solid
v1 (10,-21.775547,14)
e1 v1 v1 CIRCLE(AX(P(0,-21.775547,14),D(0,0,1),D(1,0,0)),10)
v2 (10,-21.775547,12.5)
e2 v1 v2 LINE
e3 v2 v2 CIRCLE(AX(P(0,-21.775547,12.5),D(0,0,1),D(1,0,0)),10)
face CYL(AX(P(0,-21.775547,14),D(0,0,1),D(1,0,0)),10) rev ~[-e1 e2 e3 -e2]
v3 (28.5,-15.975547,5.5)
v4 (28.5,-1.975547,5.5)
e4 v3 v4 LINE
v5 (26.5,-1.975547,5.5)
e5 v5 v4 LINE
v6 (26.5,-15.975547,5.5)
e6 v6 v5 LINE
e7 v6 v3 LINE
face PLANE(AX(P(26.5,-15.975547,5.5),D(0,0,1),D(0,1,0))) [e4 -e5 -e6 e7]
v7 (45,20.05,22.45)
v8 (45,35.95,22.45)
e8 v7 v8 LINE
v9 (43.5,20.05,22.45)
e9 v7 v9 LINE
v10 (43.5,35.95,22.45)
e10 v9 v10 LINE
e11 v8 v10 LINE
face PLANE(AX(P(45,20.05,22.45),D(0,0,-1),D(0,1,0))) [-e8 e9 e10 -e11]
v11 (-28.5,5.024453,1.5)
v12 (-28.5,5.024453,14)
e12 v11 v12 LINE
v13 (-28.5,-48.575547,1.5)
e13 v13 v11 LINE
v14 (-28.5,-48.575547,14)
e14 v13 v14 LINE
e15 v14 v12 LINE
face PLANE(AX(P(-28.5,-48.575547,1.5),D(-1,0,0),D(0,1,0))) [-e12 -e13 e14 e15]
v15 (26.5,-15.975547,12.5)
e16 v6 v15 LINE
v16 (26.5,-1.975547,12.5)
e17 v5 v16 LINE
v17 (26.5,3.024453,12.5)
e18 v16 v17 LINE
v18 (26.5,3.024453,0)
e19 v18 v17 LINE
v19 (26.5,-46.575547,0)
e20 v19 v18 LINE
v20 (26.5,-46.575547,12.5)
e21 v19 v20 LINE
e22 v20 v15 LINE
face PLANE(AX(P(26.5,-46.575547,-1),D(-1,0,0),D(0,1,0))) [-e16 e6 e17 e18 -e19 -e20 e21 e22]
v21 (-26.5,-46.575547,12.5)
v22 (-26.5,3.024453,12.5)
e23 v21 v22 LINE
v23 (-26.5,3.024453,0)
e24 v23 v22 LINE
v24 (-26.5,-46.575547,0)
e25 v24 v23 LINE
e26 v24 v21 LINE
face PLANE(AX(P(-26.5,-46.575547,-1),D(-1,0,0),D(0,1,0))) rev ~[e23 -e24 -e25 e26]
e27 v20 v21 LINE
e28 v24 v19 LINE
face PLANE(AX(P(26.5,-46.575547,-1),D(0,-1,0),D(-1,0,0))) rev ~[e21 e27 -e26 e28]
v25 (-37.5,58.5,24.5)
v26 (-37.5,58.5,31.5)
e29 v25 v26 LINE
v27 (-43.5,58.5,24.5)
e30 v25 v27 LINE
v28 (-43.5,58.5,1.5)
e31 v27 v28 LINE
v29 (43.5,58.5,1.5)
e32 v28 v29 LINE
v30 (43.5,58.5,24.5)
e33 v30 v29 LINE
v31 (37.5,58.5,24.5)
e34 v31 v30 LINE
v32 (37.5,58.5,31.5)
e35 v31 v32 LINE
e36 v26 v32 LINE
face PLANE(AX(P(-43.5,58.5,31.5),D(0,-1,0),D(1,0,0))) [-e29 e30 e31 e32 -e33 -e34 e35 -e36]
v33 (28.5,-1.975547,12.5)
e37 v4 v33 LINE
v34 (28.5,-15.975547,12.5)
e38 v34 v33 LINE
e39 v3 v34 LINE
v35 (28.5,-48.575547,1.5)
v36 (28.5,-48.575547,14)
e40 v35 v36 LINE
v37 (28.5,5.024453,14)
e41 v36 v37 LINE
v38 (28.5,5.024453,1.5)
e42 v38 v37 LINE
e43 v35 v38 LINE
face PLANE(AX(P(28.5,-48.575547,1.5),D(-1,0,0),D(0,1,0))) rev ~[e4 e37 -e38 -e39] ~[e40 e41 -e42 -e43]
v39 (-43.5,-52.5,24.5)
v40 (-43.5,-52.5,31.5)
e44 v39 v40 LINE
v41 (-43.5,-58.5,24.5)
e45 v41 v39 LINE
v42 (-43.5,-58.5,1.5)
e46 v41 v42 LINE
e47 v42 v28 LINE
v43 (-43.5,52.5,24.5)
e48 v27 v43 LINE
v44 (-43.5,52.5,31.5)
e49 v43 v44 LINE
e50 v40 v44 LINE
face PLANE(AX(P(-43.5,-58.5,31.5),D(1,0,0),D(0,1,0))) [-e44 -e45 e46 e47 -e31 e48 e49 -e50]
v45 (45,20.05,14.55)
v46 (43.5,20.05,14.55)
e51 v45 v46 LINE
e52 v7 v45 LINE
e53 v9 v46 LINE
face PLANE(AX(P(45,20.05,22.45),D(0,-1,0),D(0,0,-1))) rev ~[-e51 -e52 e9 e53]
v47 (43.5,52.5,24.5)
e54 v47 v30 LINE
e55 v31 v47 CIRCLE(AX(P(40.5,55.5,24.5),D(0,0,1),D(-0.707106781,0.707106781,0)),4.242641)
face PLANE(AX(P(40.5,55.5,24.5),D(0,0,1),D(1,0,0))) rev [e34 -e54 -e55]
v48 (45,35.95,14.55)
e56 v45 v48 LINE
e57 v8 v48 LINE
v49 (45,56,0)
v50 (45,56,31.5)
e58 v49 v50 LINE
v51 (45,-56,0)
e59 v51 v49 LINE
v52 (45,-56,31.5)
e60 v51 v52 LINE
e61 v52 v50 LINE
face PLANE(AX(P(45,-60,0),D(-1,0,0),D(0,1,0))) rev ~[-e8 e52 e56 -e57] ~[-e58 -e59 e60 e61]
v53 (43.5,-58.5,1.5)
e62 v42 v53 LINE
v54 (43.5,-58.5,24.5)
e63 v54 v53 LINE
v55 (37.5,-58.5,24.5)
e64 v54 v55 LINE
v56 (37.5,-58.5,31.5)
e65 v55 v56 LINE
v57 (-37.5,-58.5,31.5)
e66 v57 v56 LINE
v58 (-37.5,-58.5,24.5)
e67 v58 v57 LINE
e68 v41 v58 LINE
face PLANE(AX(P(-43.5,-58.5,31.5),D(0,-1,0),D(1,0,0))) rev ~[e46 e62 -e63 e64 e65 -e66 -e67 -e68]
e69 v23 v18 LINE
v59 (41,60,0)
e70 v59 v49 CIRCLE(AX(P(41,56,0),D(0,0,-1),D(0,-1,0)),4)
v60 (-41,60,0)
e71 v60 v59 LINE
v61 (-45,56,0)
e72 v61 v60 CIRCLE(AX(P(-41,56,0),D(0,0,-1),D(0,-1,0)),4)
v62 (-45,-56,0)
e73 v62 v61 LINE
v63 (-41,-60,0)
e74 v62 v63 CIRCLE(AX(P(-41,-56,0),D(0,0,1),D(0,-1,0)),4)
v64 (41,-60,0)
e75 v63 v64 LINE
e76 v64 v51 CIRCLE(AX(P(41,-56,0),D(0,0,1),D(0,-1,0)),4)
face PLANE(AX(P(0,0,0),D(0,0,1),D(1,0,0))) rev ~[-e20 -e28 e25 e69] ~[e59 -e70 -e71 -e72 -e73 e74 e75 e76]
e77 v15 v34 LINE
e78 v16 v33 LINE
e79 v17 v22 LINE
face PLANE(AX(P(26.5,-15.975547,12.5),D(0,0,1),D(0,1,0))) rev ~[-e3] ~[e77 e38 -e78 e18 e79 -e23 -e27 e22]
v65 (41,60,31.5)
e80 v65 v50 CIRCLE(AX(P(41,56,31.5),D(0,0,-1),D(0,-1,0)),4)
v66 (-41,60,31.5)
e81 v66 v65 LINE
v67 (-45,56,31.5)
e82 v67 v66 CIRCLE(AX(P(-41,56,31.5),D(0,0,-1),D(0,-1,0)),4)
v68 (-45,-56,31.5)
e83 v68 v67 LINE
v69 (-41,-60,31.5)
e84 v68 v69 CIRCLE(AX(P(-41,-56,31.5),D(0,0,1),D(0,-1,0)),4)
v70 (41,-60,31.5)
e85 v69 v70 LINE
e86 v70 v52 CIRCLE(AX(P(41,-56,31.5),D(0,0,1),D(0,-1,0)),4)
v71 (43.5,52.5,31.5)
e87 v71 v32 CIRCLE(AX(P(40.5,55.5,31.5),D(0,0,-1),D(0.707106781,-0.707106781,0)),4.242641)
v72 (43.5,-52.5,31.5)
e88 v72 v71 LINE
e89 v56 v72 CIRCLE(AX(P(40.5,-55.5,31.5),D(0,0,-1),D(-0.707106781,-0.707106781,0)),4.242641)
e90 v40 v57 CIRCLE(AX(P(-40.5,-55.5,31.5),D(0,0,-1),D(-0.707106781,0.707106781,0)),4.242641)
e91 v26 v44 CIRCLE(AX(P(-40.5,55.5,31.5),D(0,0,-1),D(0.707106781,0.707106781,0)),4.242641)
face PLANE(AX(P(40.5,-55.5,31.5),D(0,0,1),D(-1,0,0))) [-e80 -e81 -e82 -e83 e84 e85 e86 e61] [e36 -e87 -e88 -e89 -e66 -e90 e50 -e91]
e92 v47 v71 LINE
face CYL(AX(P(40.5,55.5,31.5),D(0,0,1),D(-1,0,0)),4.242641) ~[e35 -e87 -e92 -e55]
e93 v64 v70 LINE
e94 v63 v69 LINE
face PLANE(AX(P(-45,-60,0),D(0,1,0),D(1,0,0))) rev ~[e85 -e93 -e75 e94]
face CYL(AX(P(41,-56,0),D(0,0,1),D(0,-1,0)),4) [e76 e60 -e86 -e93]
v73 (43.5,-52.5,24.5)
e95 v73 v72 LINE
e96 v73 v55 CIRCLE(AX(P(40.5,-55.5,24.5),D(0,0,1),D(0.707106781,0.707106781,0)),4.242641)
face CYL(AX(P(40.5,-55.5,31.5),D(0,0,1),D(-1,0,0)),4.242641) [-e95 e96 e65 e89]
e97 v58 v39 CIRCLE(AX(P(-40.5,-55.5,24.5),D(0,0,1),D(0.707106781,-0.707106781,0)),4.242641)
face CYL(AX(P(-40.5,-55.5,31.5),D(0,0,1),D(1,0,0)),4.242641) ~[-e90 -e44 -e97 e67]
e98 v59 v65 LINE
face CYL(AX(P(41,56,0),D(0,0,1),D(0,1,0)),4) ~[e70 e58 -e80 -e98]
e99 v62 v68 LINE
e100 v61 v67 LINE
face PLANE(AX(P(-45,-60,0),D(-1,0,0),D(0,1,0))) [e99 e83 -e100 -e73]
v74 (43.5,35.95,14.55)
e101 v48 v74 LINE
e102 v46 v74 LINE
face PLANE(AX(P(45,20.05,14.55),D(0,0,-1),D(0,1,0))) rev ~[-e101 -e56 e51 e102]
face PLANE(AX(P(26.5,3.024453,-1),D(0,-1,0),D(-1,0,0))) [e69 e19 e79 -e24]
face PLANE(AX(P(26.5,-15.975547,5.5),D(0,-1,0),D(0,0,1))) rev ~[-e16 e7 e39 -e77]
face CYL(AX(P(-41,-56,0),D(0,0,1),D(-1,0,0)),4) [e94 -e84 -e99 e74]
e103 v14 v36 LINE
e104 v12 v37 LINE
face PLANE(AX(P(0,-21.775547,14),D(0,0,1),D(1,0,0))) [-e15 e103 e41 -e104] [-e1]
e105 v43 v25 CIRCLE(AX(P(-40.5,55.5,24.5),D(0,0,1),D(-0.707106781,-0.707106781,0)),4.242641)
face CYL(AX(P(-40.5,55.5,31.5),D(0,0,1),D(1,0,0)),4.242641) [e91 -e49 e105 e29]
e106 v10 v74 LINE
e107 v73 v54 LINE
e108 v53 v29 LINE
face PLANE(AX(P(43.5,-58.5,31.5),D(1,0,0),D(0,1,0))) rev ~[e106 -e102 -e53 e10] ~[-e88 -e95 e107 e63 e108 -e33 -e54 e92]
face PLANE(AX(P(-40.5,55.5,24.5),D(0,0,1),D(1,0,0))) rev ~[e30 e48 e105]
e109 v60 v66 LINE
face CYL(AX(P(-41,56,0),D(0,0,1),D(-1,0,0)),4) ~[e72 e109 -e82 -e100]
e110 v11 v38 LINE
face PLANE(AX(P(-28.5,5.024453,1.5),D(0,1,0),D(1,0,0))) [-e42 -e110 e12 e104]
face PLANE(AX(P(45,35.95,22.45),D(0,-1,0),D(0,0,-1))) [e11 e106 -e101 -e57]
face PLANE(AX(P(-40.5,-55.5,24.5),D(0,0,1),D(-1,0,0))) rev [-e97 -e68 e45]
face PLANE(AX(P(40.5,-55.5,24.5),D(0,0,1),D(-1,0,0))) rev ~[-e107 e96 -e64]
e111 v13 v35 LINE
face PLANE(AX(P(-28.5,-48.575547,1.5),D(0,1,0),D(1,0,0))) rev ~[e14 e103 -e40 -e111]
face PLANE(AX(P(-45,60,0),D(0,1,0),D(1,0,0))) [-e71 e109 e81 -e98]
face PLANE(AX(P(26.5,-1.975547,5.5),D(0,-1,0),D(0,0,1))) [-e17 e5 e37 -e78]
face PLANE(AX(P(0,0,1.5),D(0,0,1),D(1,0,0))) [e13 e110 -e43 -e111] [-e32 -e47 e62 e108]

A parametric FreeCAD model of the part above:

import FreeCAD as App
import Part
import Sketcher


def edges_at(feature, points):
    """Names of the edges that pass closest to the given points."""
    edges = feature.Shape.Edges
    near = lambda p: min(range(len(edges)), key=lambda i: edges[i].distToShape(Part.Vertex(*p))[0])
    return sorted({f"Edge{near(p) + 1}" for p in points})

doc = App.newDocument("Part")
body = doc.addObject("PartDesign::Body", "Body")

# Sketch on XY plane
sketch1 = body.newObject("Sketcher::SketchObject", "Sketch")
sketch1.AttachmentSupport = (doc.getObject("XY_Plane"), [""])
sketch1.MapMode = "FlatFace"
sketch1.addGeometry(Part.LineSegment(App.Vector(-45, 60, 0), App.Vector(-45, -60, 0)), False)
sketch1.addGeometry(Part.LineSegment(App.Vector(-45, -60, 0), App.Vector(45, -60, 0)), False)
sketch1.addGeometry(Part.LineSegment(App.Vector(45, -60, 0), App.Vector(45, 60, 0)), False)
sketch1.addGeometry(Part.LineSegment(App.Vector(45, 60, 0), App.Vector(-45, 60, 0)), False)
sketch1.addConstraint(Sketcher.Constraint("Coincident", 0, 2, 1, 1))
sketch1.addConstraint(Sketcher.Constraint("Coincident", 1, 2, 2, 1))
sketch1.addConstraint(Sketcher.Constraint("Coincident", 2, 2, 3, 1))
sketch1.addConstraint(Sketcher.Constraint("Coincident", 3, 2, 0, 1))
sketch1.addConstraint(Sketcher.Constraint("Vertical", 0))
sketch1.addConstraint(Sketcher.Constraint("Horizontal", 1))
sketch1.addConstraint(Sketcher.Constraint("Vertical", 2))
sketch1.addConstraint(Sketcher.Constraint("Horizontal", 3))
sketch1.addConstraint(Sketcher.Constraint("Symmetric", 0, 2, 2, 2, -1, 1))
sketch1.addConstraint(Sketcher.Constraint("DistanceX", 1, 1, 1, 2, 90.0))
sketch1.addConstraint(Sketcher.Constraint("DistanceY", 0, 2, 0, 1, 120.0))
pad1 = body.newObject("PartDesign::Pad", "Pad")
pad1.Profile = sketch1
pad1.Length = 31.5

# Sketch on XY plane
sketch2 = body.newObject("Sketcher::SketchObject", "Sketch001")
sketch2.AttachmentSupport = (doc.getObject("XY_Plane"), [""])
sketch2.MapMode = "FlatFace"
sketch2.AttachmentOffset = App.Placement(App.Vector(0, 0, 31.5), App.Rotation())
sketch2.addGeometry(Part.LineSegment(App.Vector(-44, 58, 0), App.Vector(-44, -58, 0)), False)
sketch2.addGeometry(Part.LineSegment(App.Vector(-44, -58, 0), App.Vector(44, -58, 0)), False)
sketch2.addGeometry(Part.LineSegment(App.Vector(44, -58, 0), App.Vector(44, 58, 0)), False)
sketch2.addGeometry(Part.LineSegment(App.Vector(44, 58, 0), App.Vector(-44, 58, 0)), False)
sketch2.addConstraint(Sketcher.Constraint("Coincident", 0, 2, 1, 1))
sketch2.addConstraint(Sketcher.Constraint("Coincident", 1, 2, 2, 1))
sketch2.addConstraint(Sketcher.Constraint("Coincident", 2, 2, 3, 1))
sketch2.addConstraint(Sketcher.Constraint("Coincident", 3, 2, 0, 1))
sketch2.addConstraint(Sketcher.Constraint("Vertical", 0))
sketch2.addConstraint(Sketcher.Constraint("Horizontal", 1))
sketch2.addConstraint(Sketcher.Constraint("Vertical", 2))
sketch2.addConstraint(Sketcher.Constraint("Horizontal", 3))
sketch2.addConstraint(Sketcher.Constraint("Symmetric", 0, 2, 2, 2, -1, 1))
sketch2.addConstraint(Sketcher.Constraint("DistanceX", 1, 1, 1, 2, 87.0))
sketch2.addConstraint(Sketcher.Constraint("DistanceY", 0, 2, 0, 1, 117.0))
pocket1 = body.newObject("PartDesign::Pocket", "Pocket")
pocket1.Profile = sketch2
pocket1.Length = 30
doc.recompute()

fillet = body.newObject("PartDesign::Fillet", "Fillet")
fillet.Base = (pocket1, edges_at(pocket1, [
    (45, -60, 15.75),
    (-45, -60, 15.75),
    (-45, 60, 15.75),
    (45, 60, 15.75),
]))
fillet.Radius = 4

# Sketch on XY plane
sketch3 = body.newObject("Sketcher::SketchObject", "Sketch002")
sketch3.AttachmentSupport = (doc.getObject("XY_Plane"), [""])
sketch3.MapMode = "FlatFace"
sketch3.AttachmentOffset = App.Placement(App.Vector(0, 0, 1.5), App.Rotation())
sketch3.addGeometry(Part.LineSegment(App.Vector(-28, 5, 0), App.Vector(-28, -49, 0)), False)
sketch3.addGeometry(Part.LineSegment(App.Vector(-28, -49, 0), App.Vector(28, -49, 0)), False)
sketch3.addGeometry(Part.LineSegment(App.Vector(28, -49, 0), App.Vector(28, 5, 0)), False)
sketch3.addGeometry(Part.LineSegment(App.Vector(28, 5, 0), App.Vector(-28, 5, 0)), False)
sketch3.addConstraint(Sketcher.Constraint("Coincident", 0, 2, 1, 1))
sketch3.addConstraint(Sketcher.Constraint("Coincident", 1, 2, 2, 1))
sketch3.addConstraint(Sketcher.Constraint("Coincident", 2, 2, 3, 1))
sketch3.addConstraint(Sketcher.Constraint("Coincident", 3, 2, 0, 1))
sketch3.addConstraint(Sketcher.Constraint("Vertical", 0))
sketch3.addConstraint(Sketcher.Constraint("Horizontal", 1))
sketch3.addConstraint(Sketcher.Constraint("Vertical", 2))
sketch3.addConstraint(Sketcher.Constraint("Horizontal", 3))
sketch3.addConstraint(Sketcher.Constraint("DistanceX", 1, 1, 1, 2, 57.0))
sketch3.addConstraint(Sketcher.Constraint("DistanceY", 0, 2, 0, 1, 53.6))
sketch3.addConstraint(Sketcher.Constraint("DistanceX", 0, 2, -1, 1, 28.5))
sketch3.addConstraint(Sketcher.Constraint("DistanceY", 0, 2, -1, 1, 48.575547))
pad2 = body.newObject("PartDesign::Pad", "Pad001")
pad2.Profile = sketch3
pad2.Length = 12.5

# Sketch on XY plane
sketch4 = body.newObject("Sketcher::SketchObject", "Sketch003")
sketch4.AttachmentSupport = (doc.getObject("XY_Plane"), [""])
sketch4.MapMode = "FlatFace"
sketch4.AttachmentOffset = App.Placement(App.Vector(0, 0, 14), App.Rotation())
sketch4.addGeometry(Part.LineSegment(App.Vector(-26, 3, 0), App.Vector(-26, -47, 0)), False)
sketch4.addGeometry(Part.LineSegment(App.Vector(-26, -47, 0), App.Vector(26, -47, 0)), False)
sketch4.addGeometry(Part.LineSegment(App.Vector(26, -47, 0), App.Vector(26, 3, 0)), False)
sketch4.addGeometry(Part.LineSegment(App.Vector(26, 3, 0), App.Vector(-26, 3, 0)), False)
sketch4.addConstraint(Sketcher.Constraint("Coincident", 0, 2, 1, 1))
sketch4.addConstraint(Sketcher.Constraint("Coincident", 1, 2, 2, 1))
sketch4.addConstraint(Sketcher.Constraint("Coincident", 2, 2, 3, 1))
sketch4.addConstraint(Sketcher.Constraint("Coincident", 3, 2, 0, 1))
sketch4.addConstraint(Sketcher.Constraint("Vertical", 0))
sketch4.addConstraint(Sketcher.Constraint("Horizontal", 1))
sketch4.addConstraint(Sketcher.Constraint("Vertical", 2))
sketch4.addConstraint(Sketcher.Constraint("Horizontal", 3))
sketch4.addConstraint(Sketcher.Constraint("DistanceX", 1, 1, 1, 2, 53.0))
sketch4.addConstraint(Sketcher.Constraint("DistanceY", 0, 2, 0, 1, 49.6))
sketch4.addConstraint(Sketcher.Constraint("DistanceX", 0, 2, -1, 1, 26.5))
sketch4.addConstraint(Sketcher.Constraint("DistanceY", 0, 2, -1, 1, 46.575547))
pad3 = body.newObject("PartDesign::Pad", "Pad002")
pad3.Profile = sketch4
pad3.Length = 15
pad3.Reversed = True

# Sketch on XY plane
sketch5 = body.newObject("Sketcher::SketchObject", "Sketch004")
sketch5.AttachmentSupport = (doc.getObject("XY_Plane"), [""])
sketch5.MapMode = "FlatFace"
sketch5.AttachmentOffset = App.Placement(App.Vector(0, 0, -1), App.Rotation())
sketch5.addGeometry(Part.LineSegment(App.Vector(26, 3, 0), App.Vector(26, -47, 0)), False)
sketch5.addGeometry(Part.LineSegment(App.Vector(26, -47, 0), App.Vector(-26, -47, 0)), False)
sketch5.addGeometry(Part.LineSegment(App.Vector(-26, -47, 0), App.Vector(-26, 3, 0)), False)
sketch5.addGeometry(Part.LineSegment(App.Vector(-26, 3, 0), App.Vector(26, 3, 0)), False)
sketch5.addConstraint(Sketcher.Constraint("Coincident", 0, 2, 1, 1))
sketch5.addConstraint(Sketcher.Constraint("Coincident", 1, 2, 2, 1))
sketch5.addConstraint(Sketcher.Constraint("Coincident", 2, 2, 3, 1))
sketch5.addConstraint(Sketcher.Constraint("Coincident", 3, 2, 0, 1))
sketch5.addConstraint(Sketcher.Constraint("Vertical", 0))
sketch5.addConstraint(Sketcher.Constraint("Horizontal", 1))
sketch5.addConstraint(Sketcher.Constraint("Vertical", 2))
sketch5.addConstraint(Sketcher.Constraint("Horizontal", 3))
sketch5.addConstraint(Sketcher.Constraint("DistanceX", 1, 2, 1, 1, 53.0))
sketch5.addConstraint(Sketcher.Constraint("DistanceY", 0, 2, 0, 1, 49.6))
sketch5.addConstraint(Sketcher.Constraint("DistanceX", -1, 1, 0, 2, 26.5))
sketch5.addConstraint(Sketcher.Constraint("DistanceY", 0, 2, -1, 1, 46.575547))
pocket2 = body.newObject("PartDesign::Pocket", "Pocket001")
pocket2.Profile = sketch5
pocket2.Length = 13.5
pocket2.Reversed = True

# Sketch on YZ plane
sketch6 = body.newObject("Sketcher::SketchObject", "Sketch005")
sketch6.AttachmentSupport = (doc.getObject("YZ_Plane"), [""])
sketch6.MapMode = "FlatFace"
sketch6.AttachmentOffset = App.Placement(App.Vector(0, 0, 26.5), App.Rotation())
sketch6.addGeometry(Part.LineSegment(App.Vector(-2, 6, 0), App.Vector(-16, 6, 0)), False)
sketch6.addGeometry(Part.LineSegment(App.Vector(-16, 6, 0), App.Vector(-16, 12, 0)), False)
sketch6.addGeometry(Part.LineSegment(App.Vector(-16, 12, 0), App.Vector(-2, 12, 0)), False)
sketch6.addGeometry(Part.LineSegment(App.Vector(-2, 12, 0), App.Vector(-2, 6, 0)), False)
sketch6.addConstraint(Sketcher.Constraint("Coincident", 0, 2, 1, 1))
sketch6.addConstraint(Sketcher.Constraint("Coincident", 1, 2, 2, 1))
sketch6.addConstraint(Sketcher.Constraint("Coincident", 2, 2, 3, 1))
sketch6.addConstraint(Sketcher.Constraint("Coincident", 3, 2, 0, 1))
sketch6.addConstraint(Sketcher.Constraint("Horizontal", 0))
sketch6.addConstraint(Sketcher.Constraint("Vertical", 1))
sketch6.addConstraint(Sketcher.Constraint("Horizontal", 2))
sketch6.addConstraint(Sketcher.Constraint("Vertical", 3))
sketch6.addConstraint(Sketcher.Constraint("DistanceX", 0, 2, 0, 1, 14.0))
sketch6.addConstraint(Sketcher.Constraint("DistanceY", 1, 1, 1, 2, 7.0))
sketch6.addConstraint(Sketcher.Constraint("DistanceY", -1, 1, 0, 2, 5.5))
sketch6.addConstraint(Sketcher.Constraint("DistanceX", 0, 2, -1, 1, 15.975547))
pocket3 = body.newObject("PartDesign::Pocket", "Pocket002")
pocket3.Profile = sketch6
pocket3.Length = 5
pocket3.Reversed = True

# Sketch on XY plane
sketch7 = body.newObject("Sketcher::SketchObject", "Sketch006")
sketch7.AttachmentSupport = (doc.getObject("XY_Plane"), [""])
sketch7.MapMode = "FlatFace"
sketch7.AttachmentOffset = App.Placement(App.Vector(0, 0, 31.5), App.Rotation())
sketch7.addGeometry(Part.Circle(App.Vector(-40.5, 55.5, 0), App.Vector(0, 0, 1), 4.2), False)
sketch7.addConstraint(Sketcher.Constraint("DistanceX", 0, 3, -1, 1, 40.5))
sketch7.addConstraint(Sketcher.Constraint("DistanceY", -1, 1, 0, 3, 55.5))
sketch7.addConstraint(Sketcher.Constraint("Diameter", 0, 8.485281))
pad4 = body.newObject("PartDesign::Pad", "Pad003")
pad4.Profile = sketch7
pad4.Length = 7
pad4.Reversed = True

# Sketch on YZ plane
sketch8 = body.newObject("Sketcher::SketchObject", "Sketch007")
sketch8.AttachmentSupport = (doc.getObject("YZ_Plane"), [""])
sketch8.MapMode = "FlatFace"
sketch8.AttachmentOffset = App.Placement(App.Vector(0, 0, 45), App.Rotation())
sketch8.addGeometry(Part.LineSegment(App.Vector(36, 22, 0), App.Vector(20, 22, 0)), False)
sketch8.addGeometry(Part.LineSegment(App.Vector(20, 22, 0), App.Vector(20, 15, 0)), False)
sketch8.addGeometry(Part.LineSegment(App.Vector(20, 15, 0), App.Vector(36, 15, 0)), False)
sketch8.addGeometry(Part.LineSegment(App.Vector(36, 15, 0), App.Vector(36, 22, 0)), False)
sketch8.addConstraint(Sketcher.Constraint("Coincident", 0, 2, 1, 1))
sketch8.addConstraint(Sketcher.Constraint("Coincident", 1, 2, 2, 1))
sketch8.addConstraint(Sketcher.Constraint("Coincident", 2, 2, 3, 1))
sketch8.addConstraint(Sketcher.Constraint("Coincident", 3, 2, 0, 1))
sketch8.addConstraint(Sketcher.Constraint("Horizontal", 0))
sketch8.addConstraint(Sketcher.Constraint("Vertical", 1))
sketch8.addConstraint(Sketcher.Constraint("Horizontal", 2))
sketch8.addConstraint(Sketcher.Constraint("Vertical", 3))
sketch8.addConstraint(Sketcher.Constraint("DistanceX", 0, 2, 0, 1, 15.9))
sketch8.addConstraint(Sketcher.Constraint("DistanceY", 1, 2, 1, 1, 7.9))
sketch8.addConstraint(Sketcher.Constraint("DistanceX", -1, 1, 0, 2, 20.05))
sketch8.addConstraint(Sketcher.Constraint("DistanceY", -1, 1, 0, 2, 22.45))
pocket4 = body.newObject("PartDesign::Pocket", "Pocket003")
pocket4.Profile = sketch8
pocket4.Length = 5
doc.recompute()

mirrored = body.newObject("PartDesign::Mirrored", "Mirrored")
mirrored.Originals = [pad4]
mirrored.MirrorPlane = (doc.getObject("YZ_Plane"), [""])
body.Tip = mirrored
doc.recompute()

mirrored2 = body.newObject("PartDesign::Mirrored", "Mirrored001")
mirrored2.Originals = [pad4]
mirrored2.MirrorPlane = (doc.getObject("XZ_Plane"), [""])
body.Tip = mirrored2

# Sketch on XY plane
sketch9 = body.newObject("Sketcher::SketchObject", "Sketch008")
sketch9.AttachmentSupport = (doc.getObject("XY_Plane"), [""])
sketch9.MapMode = "FlatFace"
sketch9.AttachmentOffset = App.Placement(App.Vector(0, 0, 31.5), App.Rotation())
sketch9.addGeometry(Part.Circle(App.Vector(40.5, -55.5, 0), App.Vector(0, 0, 1), 4.2), False)
sketch9.addConstraint(Sketcher.Constraint("DistanceX", -1, 1, 0, 3, 40.5))
sketch9.addConstraint(Sketcher.Constraint("DistanceY", 0, 3, -1, 1, 55.5))
sketch9.addConstraint(Sketcher.Constraint("Diameter", 0, 8.485281))
pad5 = body.newObject("PartDesign::Pad", "Pad004")
pad5.Profile = sketch9
pad5.Length = 7
pad5.Reversed = True

# Sketch on XY plane
sketch10 = body.newObject("Sketcher::SketchObject", "Sketch009")
sketch10.AttachmentSupport = (doc.getObject("XY_Plane"), [""])
sketch10.MapMode = "FlatFace"
sketch10.AttachmentOffset = App.Placement(App.Vector(0, 0, 14), App.Rotation())
sketch10.addGeometry(Part.Circle(App.Vector(0, -22, 0), App.Vector(0, 0, 1), 10), False)
sketch10.addConstraint(Sketcher.Constraint("PointOnObject", 0, 3, -2))
sketch10.addConstraint(Sketcher.Constraint("Diameter", 0, 20.0))
sketch10.addConstraint(Sketcher.Constraint("DistanceY", 0, 3, -1, 1, 21.775547))
pocket5 = body.newObject("PartDesign::Pocket", "Pocket004")
pocket5.Profile = sketch10
pocket5.Length = 10

doc.recompute()
